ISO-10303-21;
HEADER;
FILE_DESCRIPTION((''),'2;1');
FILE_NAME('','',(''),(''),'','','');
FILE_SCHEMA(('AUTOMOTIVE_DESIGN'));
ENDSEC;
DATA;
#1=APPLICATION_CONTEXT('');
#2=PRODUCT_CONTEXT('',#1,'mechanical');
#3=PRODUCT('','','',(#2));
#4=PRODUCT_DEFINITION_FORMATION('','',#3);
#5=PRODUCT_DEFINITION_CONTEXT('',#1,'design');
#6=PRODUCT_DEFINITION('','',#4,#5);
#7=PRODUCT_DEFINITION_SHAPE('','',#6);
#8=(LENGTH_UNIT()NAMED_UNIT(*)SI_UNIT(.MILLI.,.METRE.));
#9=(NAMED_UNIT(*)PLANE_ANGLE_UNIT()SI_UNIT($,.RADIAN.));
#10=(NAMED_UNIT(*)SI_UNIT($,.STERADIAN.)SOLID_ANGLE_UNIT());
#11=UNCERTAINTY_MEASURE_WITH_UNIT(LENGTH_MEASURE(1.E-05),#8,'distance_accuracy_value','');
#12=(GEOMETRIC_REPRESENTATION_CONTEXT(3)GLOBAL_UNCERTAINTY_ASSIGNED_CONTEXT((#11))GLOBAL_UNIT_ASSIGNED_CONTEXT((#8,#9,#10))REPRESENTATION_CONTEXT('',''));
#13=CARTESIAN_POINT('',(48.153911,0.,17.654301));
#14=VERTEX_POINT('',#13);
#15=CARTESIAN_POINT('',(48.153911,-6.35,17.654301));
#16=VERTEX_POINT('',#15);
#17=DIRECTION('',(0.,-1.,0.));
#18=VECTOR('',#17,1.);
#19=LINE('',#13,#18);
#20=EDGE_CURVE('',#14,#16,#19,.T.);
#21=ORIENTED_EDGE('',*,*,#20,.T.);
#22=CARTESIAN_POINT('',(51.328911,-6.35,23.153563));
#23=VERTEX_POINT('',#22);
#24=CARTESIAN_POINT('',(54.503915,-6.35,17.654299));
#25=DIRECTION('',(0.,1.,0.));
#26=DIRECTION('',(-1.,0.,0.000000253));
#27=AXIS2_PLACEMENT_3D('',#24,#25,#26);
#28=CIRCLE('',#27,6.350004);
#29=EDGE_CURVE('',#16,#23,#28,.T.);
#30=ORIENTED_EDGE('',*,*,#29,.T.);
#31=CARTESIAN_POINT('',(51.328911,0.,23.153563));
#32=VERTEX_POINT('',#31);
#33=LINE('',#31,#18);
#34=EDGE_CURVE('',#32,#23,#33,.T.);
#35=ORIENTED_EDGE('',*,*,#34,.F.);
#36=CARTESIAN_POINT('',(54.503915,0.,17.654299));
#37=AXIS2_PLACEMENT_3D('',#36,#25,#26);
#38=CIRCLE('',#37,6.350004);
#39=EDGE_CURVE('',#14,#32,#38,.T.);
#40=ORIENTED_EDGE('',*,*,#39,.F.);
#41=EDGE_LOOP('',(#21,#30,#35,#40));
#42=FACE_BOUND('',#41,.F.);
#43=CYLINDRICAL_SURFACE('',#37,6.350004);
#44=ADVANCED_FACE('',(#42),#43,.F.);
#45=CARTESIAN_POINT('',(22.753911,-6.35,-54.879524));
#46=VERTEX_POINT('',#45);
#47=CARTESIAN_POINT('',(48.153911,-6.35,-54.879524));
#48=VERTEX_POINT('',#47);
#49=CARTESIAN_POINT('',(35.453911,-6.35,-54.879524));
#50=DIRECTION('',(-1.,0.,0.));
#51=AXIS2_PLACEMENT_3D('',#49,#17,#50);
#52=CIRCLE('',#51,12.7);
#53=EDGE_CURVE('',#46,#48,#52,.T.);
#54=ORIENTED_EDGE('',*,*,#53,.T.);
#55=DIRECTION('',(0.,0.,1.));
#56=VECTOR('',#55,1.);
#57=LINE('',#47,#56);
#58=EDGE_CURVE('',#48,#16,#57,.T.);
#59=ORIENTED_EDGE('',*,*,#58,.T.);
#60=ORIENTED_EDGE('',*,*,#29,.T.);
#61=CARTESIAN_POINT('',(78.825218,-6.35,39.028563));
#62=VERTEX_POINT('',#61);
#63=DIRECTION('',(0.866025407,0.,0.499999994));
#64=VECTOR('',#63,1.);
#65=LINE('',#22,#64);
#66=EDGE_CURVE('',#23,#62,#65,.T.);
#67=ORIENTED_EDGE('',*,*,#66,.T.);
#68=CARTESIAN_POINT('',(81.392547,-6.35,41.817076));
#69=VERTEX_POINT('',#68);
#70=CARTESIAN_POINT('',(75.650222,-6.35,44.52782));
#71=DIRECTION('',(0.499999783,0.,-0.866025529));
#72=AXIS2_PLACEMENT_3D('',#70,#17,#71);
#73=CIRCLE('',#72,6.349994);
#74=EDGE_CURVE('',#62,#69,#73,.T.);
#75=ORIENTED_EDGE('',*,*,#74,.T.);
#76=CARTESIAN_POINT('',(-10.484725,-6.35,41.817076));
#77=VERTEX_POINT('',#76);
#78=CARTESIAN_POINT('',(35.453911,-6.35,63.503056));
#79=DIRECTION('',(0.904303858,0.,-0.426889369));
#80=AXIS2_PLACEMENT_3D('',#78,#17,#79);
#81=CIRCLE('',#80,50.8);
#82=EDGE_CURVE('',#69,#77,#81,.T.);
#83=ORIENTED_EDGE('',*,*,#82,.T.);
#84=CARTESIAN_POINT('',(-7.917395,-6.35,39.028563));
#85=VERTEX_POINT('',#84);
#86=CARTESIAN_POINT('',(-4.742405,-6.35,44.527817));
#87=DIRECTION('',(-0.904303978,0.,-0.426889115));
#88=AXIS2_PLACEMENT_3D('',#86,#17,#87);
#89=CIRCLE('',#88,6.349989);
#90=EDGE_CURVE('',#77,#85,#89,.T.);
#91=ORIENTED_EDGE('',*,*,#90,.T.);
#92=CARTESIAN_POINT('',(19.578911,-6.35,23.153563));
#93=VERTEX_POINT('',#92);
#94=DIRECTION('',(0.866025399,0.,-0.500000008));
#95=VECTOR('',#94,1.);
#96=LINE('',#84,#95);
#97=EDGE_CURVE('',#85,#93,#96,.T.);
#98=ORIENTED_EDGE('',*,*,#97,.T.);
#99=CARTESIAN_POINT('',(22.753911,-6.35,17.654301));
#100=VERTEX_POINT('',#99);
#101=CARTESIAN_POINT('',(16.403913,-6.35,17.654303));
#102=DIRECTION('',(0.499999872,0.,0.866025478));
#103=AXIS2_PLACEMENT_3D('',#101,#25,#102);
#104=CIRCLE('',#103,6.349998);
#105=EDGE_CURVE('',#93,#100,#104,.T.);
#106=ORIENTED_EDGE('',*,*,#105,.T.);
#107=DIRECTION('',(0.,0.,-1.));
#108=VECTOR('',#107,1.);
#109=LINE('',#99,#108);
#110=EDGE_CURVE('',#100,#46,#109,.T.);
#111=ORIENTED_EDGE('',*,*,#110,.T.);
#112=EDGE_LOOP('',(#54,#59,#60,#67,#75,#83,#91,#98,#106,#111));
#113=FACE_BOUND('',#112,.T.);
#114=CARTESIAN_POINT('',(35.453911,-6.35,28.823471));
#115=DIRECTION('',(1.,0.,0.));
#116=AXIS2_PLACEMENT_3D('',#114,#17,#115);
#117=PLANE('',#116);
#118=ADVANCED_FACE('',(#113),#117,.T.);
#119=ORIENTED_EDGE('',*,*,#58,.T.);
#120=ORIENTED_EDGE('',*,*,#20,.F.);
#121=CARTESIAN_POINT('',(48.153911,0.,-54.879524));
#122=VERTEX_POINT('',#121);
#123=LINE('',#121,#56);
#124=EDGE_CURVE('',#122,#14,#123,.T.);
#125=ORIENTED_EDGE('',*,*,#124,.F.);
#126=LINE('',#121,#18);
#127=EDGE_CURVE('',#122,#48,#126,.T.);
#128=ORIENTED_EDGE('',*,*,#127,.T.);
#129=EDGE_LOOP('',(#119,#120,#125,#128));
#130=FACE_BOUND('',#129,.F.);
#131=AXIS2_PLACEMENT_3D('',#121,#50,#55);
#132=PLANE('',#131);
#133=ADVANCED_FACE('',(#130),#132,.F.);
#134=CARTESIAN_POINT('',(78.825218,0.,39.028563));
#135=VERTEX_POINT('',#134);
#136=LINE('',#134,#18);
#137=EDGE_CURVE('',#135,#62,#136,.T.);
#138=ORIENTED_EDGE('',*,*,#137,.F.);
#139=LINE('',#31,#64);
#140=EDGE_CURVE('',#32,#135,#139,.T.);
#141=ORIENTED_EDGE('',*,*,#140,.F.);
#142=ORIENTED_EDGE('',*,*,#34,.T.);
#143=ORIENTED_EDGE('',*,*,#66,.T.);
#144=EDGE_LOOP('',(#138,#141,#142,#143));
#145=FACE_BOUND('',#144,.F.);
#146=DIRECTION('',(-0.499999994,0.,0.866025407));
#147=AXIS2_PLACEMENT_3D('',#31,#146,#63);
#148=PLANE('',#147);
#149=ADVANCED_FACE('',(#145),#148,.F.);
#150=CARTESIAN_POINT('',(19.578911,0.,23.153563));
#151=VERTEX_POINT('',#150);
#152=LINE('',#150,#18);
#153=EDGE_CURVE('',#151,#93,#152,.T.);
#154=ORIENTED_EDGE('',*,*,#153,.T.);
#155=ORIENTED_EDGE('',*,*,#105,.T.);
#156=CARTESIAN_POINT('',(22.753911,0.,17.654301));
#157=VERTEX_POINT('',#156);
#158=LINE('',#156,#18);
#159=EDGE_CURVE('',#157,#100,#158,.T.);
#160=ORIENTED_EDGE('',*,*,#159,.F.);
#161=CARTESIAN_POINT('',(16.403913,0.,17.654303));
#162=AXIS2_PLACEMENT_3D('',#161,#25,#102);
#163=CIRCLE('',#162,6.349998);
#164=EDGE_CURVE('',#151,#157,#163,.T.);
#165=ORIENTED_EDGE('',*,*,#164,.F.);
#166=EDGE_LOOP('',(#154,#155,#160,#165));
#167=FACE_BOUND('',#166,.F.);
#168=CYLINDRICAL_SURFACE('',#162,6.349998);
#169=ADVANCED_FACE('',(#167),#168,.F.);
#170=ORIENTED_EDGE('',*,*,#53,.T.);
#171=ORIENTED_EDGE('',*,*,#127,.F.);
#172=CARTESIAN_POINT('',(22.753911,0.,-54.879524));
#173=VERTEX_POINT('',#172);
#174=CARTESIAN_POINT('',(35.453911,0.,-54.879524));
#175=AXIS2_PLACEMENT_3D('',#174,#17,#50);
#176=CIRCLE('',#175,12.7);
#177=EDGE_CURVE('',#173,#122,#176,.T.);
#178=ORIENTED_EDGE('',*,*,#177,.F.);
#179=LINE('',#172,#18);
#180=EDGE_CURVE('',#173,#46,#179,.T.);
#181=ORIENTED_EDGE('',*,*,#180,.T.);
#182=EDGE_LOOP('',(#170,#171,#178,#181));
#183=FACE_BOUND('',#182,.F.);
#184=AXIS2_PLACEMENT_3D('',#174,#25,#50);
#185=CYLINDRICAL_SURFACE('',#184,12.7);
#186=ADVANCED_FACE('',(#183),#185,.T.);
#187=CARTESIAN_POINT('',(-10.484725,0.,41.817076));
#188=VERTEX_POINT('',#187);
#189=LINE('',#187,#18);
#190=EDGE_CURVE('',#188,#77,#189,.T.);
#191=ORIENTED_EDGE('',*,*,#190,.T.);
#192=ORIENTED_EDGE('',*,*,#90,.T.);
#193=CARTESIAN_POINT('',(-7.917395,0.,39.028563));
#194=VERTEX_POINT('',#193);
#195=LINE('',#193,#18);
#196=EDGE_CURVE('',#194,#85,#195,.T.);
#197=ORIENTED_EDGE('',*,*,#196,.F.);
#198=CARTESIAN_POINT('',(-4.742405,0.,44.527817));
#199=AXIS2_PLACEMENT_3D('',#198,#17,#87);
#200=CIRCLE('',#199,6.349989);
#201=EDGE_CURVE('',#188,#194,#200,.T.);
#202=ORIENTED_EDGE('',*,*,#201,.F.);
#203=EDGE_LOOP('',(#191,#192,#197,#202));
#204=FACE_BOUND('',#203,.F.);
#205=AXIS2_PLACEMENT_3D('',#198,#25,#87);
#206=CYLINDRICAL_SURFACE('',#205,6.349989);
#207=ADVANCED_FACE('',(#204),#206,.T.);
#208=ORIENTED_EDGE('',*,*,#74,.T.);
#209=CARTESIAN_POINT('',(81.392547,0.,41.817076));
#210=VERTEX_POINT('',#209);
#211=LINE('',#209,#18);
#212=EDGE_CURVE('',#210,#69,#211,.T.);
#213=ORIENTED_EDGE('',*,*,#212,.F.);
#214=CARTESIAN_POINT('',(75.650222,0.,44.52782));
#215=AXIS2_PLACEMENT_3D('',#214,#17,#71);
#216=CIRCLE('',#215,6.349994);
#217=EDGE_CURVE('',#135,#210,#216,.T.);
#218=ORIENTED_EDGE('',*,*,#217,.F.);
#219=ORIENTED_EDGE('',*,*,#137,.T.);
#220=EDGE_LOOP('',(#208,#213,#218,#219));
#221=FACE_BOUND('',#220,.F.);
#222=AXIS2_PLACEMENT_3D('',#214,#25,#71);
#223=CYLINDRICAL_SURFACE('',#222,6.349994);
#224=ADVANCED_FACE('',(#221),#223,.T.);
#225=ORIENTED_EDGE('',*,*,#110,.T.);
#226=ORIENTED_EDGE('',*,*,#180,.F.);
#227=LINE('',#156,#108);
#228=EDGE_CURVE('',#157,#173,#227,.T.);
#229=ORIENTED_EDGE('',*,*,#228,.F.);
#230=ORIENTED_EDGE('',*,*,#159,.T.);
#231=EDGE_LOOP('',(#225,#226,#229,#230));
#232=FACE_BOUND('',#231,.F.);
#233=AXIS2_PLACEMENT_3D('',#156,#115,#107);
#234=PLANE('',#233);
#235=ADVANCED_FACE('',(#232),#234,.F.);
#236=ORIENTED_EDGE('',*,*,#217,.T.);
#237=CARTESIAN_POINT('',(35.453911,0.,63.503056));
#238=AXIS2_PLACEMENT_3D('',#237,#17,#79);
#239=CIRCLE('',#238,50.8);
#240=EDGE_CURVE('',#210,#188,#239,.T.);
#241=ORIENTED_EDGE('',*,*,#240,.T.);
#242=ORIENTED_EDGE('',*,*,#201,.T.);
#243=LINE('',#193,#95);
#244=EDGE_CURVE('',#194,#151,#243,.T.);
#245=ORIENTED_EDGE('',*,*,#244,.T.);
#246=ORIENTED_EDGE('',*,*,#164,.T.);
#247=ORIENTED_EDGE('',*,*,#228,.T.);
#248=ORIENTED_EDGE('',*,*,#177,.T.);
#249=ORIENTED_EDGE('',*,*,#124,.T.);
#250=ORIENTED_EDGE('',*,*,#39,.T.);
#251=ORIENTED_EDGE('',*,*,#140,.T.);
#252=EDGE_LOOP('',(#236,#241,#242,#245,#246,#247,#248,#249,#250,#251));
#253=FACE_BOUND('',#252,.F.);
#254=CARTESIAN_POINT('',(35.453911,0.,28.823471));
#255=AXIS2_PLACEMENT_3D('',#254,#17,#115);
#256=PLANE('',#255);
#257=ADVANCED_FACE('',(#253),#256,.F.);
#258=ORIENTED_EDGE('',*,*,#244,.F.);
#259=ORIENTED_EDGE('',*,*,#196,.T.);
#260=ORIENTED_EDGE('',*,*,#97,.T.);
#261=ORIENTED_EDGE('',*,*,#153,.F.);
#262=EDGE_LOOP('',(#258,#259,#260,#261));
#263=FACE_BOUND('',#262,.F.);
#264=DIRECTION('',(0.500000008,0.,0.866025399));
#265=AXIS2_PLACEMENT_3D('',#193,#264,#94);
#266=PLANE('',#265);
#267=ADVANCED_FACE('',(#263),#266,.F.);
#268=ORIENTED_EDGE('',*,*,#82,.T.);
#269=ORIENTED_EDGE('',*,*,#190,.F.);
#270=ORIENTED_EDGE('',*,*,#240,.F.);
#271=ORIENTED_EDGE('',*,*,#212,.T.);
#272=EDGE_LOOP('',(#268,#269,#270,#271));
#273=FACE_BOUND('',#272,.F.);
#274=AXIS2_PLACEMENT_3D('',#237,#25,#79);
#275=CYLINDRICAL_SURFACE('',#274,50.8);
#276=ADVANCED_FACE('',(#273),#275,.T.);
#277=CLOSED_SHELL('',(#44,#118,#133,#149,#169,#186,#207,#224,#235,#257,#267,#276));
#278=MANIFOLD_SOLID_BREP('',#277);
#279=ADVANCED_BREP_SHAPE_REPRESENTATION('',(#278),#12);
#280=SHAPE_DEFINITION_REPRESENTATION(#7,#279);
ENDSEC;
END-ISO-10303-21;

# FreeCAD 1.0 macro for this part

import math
import FreeCAD as App
import Part
import Sketcher

V = App.Vector
Q = App.Units.Quantity

doc = App.newDocument("Part")
body = doc.addObject("PartDesign::Body", "Body")

# Sketch on XZ plane
sketch1 = body.newObject("Sketcher::SketchObject", "Sketch")
sketch1.AttachmentSupport = (doc.getObject("XZ_Plane"), [""])
sketch1.MapMode = "FlatFace"
sketch1.addGeometry([
    Part.ArcOfCircle(Part.Circle(V(16.403913, 17.654303, 0), V(0, 0, 1), 6.349998), math.radians(-0.000015), math.radians(60.000008)),  # 0
    Part.LineSegment(V(22.753911, 17.654301, 0), V(22.753911, -54.879524, 0)),  # 1
    Part.ArcOfCircle(Part.Circle(V(35.453911, -54.879524, 0), V(0, 0, 1), 12.7), math.radians(180), math.radians(360)),  # 2
    Part.LineSegment(V(48.153911, -54.879524, 0), V(48.153911, 17.654301, 0)),  # 3
    Part.ArcOfCircle(Part.Circle(V(54.503915, 17.654299, 0), V(0, 0, 1), 6.350004), math.radians(120.000021), math.radians(179.999985)),  # 4
    Part.LineSegment(V(51.328911, 23.153563, 0), V(78.825218, 39.028563, 0)),  # 5
    Part.ArcOfCircle(Part.Circle(V(75.650222, 44.52782, 0), V(0, 0, 1), 6.349994), math.radians(-60.000014), math.radians(-25.270304)),  # 6
    Part.ArcOfCircle(Part.Circle(V(35.453911, 63.503056, 0), V(0, 0, 1), 50.8), math.radians(-25.270313), math.radians(205.270313)),  # 7
    Part.ArcOfCircle(Part.Circle(V(-4.742405, 44.527817, 0), V(0, 0, 1), 6.349989), math.radians(-154.729703), math.radians(-119.999956)),  # 8
    Part.LineSegment(V(-7.917395, 39.028563, 0), V(19.578911, 23.153563, 0)),  # 9
], False)
sketch1.addConstraint([
    Sketcher.Constraint("Tangent", 0, 1, 1, 1),
    Sketcher.Constraint("Tangent", 1, 2, 2, 1),
    Sketcher.Constraint("Tangent", 2, 2, 3, 1),
    Sketcher.Constraint("Tangent", 3, 2, 4, 2),
    Sketcher.Constraint("Tangent", 4, 1, 5, 1),
    Sketcher.Constraint("Tangent", 5, 2, 6, 1),
    Sketcher.Constraint("Tangent", 6, 2, 7, 1),
    Sketcher.Constraint("Tangent", 7, 2, 8, 1),
    Sketcher.Constraint("Tangent", 8, 2, 9, 1),
    Sketcher.Constraint("Tangent", 9, 2, 0, 2),
    Sketcher.Constraint("Vertical", 1),
    Sketcher.Constraint("Vertical", 3),
    Sketcher.Constraint("Horizontal", 4, 3, 0, 1),
    Sketcher.Constraint("Horizontal", 6, 2, 7, 2),
    Sketcher.Constraint("Horizontal", 5, 2, 8, 2),
    Sketcher.Constraint("Horizontal", 4, 1, 9, 2),
    Sketcher.Constraint("Vertical", 2, 3, 7, 3),
    Sketcher.Constraint("Radius", 7, Q("2 in")),
    Sketcher.Constraint("Radius", 2, Q("0.5 in")),
    Sketcher.Constraint("Radius", 0, Q("0.2499999 in")),
    Sketcher.Constraint("Angle", 5, Q("30 deg")),
    Sketcher.Constraint("Distance", 5, Q("1.25 in")),
    Sketcher.Constraint("Radius", 8, Q("6.349989 mm")),
    Sketcher.Constraint("DistanceY", -1, 1, 4, 3, Q("17.654299 mm")),
    Sketcher.Constraint("DistanceY", 1, 2, 1, 1, Q("72.533825 mm")),
    Sketcher.Constraint("DistanceX", -1, 1, 2, 3, Q("35.453911 mm")),
])
pad1 = body.newObject("PartDesign::Pad", "Pad")
pad1.Profile = sketch1
pad1.Length = Q("0.25 in")

doc.recompute()
